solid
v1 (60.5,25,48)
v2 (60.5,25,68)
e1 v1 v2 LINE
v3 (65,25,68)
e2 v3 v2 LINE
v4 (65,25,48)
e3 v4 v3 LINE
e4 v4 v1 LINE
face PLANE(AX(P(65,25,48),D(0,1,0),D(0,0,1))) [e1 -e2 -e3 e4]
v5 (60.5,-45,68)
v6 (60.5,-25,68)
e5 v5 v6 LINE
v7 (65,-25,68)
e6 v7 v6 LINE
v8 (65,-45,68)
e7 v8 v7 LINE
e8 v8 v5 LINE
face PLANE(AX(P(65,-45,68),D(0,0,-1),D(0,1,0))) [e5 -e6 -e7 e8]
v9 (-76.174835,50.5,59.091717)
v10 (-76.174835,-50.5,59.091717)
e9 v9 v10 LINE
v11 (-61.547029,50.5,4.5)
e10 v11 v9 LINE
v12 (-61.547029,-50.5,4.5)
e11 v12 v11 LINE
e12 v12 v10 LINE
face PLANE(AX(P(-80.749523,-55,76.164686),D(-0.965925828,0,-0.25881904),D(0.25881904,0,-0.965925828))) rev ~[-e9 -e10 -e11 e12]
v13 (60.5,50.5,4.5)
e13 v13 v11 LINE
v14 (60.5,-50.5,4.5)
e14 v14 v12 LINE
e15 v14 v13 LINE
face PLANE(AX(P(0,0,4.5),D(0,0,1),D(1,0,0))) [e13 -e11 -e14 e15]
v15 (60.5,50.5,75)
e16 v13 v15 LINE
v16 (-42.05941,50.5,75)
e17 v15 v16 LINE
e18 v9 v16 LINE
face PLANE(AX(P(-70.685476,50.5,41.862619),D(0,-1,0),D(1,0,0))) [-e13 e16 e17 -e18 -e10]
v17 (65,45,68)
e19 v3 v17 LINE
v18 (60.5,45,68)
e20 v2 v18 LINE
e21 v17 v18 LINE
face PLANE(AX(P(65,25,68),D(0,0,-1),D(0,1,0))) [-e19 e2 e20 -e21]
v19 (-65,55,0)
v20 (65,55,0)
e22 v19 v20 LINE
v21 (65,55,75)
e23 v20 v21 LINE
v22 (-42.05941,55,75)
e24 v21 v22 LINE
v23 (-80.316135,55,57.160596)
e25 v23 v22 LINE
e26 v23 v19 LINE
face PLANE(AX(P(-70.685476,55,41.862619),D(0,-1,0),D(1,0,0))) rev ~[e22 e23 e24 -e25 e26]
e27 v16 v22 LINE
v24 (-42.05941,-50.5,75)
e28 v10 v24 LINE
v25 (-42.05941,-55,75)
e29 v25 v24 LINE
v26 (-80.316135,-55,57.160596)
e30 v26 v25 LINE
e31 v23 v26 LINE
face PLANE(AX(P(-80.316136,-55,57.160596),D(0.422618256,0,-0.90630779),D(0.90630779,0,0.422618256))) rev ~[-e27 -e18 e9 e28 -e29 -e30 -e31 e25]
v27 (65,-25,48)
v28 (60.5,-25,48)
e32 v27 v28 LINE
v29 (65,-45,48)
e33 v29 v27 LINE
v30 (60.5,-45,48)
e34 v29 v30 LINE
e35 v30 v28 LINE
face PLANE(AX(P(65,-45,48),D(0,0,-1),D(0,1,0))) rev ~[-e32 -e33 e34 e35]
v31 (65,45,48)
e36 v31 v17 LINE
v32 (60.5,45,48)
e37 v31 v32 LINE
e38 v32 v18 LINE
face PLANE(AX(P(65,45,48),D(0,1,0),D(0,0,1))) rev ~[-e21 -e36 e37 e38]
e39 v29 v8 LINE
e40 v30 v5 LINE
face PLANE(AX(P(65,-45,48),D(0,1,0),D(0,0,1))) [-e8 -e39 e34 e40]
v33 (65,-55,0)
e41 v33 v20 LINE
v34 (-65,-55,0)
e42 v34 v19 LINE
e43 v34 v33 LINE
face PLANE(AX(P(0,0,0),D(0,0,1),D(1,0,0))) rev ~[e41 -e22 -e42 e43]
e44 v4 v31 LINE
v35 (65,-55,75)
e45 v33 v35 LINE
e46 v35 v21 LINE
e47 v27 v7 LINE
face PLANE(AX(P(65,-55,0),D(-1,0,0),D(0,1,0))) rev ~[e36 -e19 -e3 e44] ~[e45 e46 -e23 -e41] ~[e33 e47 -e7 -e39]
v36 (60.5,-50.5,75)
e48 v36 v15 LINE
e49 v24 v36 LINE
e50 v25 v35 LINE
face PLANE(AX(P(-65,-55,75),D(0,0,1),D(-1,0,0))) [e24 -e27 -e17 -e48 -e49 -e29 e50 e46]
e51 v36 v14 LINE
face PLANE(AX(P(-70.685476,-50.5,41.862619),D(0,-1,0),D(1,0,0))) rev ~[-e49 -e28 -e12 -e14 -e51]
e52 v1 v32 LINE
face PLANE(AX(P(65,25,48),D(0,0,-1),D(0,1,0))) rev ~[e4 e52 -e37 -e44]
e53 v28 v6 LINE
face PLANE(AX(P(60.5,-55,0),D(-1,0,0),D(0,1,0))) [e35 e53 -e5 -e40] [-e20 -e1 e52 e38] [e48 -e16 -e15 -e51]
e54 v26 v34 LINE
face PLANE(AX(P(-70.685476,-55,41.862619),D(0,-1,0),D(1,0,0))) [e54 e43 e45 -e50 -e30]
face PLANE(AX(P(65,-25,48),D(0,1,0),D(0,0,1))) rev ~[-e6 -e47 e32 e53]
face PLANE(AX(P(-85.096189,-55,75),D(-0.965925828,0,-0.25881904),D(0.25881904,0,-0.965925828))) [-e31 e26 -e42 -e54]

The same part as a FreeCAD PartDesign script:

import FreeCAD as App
import Part
import Sketcher

V = App.Vector
Q = App.Units.Quantity


def faces_at(feature, points):
    """Names of the faces that lie closest to the given points."""
    faces = feature.Shape.Faces
    near = lambda p: min(range(len(faces)), key=lambda i: faces[i].distToShape(Part.Vertex(*p))[0])
    return sorted({f"Face{near(p) + 1}" for p in points})


def add_polygon(sketch, points):
    """Adds a closed chain of lines whose ends are joined by coincident constraints."""
    first, n = sketch.GeometryCount, len(points)
    for a, b in zip(points, points[1:] + points[:1]):
        sketch.addGeometry(Part.LineSegment(App.Vector(*a, 0), App.Vector(*b, 0)), False)
    for i in range(n):
        sketch.addConstraint(Sketcher.Constraint("Coincident", first + i, 2, first + (i + 1) % n, 1))

doc = App.newDocument("Part")
params = doc.addObject("Spreadsheet::Sheet", "Params")
for row, (alias, value) in enumerate([
    ("sketch1_width", "130 mm"),
    ("sketch1_height", "110 mm"),
    ("pad1_length", "75 mm"),
    ("sketch2_height", "75 mm"),
    ("pad2_length", "110 mm"),
    ("thickness_wall", "4.5 mm"),
    ("sketch4_width", "20 mm"),
    ("pocket2_length", "4.5 mm"),
], start=1):
    params.set(f"A{row}", alias)
    params.set(f"B{row}", "=" + value)
    params.setAlias(f"B{row}", alias)

body = doc.addObject("PartDesign::Body", "Body")

# Sketch on XY plane
sketch1 = doc.addObject("Sketcher::SketchObject", "Sketch")
body.addObject(sketch1)
sketch1.AttachmentSupport = (doc.XY_Plane, [""])
sketch1.MapMode = "FlatFace"
add_polygon(sketch1, [(-65, 55), (-65, -55), (65, -55), (65, 55)])  # lines 0-3
sketch1.addConstraint([
    Sketcher.Constraint("Vertical", 0),
    Sketcher.Constraint("Horizontal", 1),
    Sketcher.Constraint("Vertical", 2),
    Sketcher.Constraint("Horizontal", 3),
    Sketcher.Constraint("Symmetric", 0, 2, 2, 2, -1, 1),
    Sketcher.Constraint("DistanceX", 1, 1, 1, 2, 130.0),
    Sketcher.Constraint("DistanceY", 0, 2, 0, 1, 110.0),
])
sketch1.setExpression("Constraints[9]", "Params.sketch1_width")
sketch1.setExpression("Constraints[10]", "Params.sketch1_height")
pad1 = doc.addObject("PartDesign::Pad", "Pad")
body.addObject(pad1)
pad1.Profile = sketch1
pad1.setExpression("Length", "Params.pad1_length")

# Sketch on XZ plane
sketch2 = doc.addObject("Sketcher::SketchObject", "Sketch001")
body.addObject(sketch2)
sketch2.AttachmentSupport = (doc.XZ_Plane, [""])
sketch2.MapMode = "FlatFace"
sketch2.AttachmentOffset = App.Placement(V(0, 0, 55), App.Rotation())
add_polygon(sketch2, [(-85.096189, 75), (-65, 0), (-65, 75)])  # lines 0-2
sketch2.addConstraint([
    Sketcher.Constraint("Vertical", 1),
    Sketcher.Constraint("Horizontal", 2),
    Sketcher.Constraint("PointOnObject", 0, 2, -1),
    Sketcher.Constraint("DistanceY", 1, 1, 1, 2, 75.0),
    Sketcher.Constraint("Angle", 0, Q("-75 deg")),
    Sketcher.Constraint("DistanceX", 0, 2, -1, 1, 65.0),
])
sketch2.setExpression("Constraints[6]", "Params.sketch2_height")
pad2 = doc.addObject("PartDesign::Pad", "Pad001")
body.addObject(pad2)
pad2.Profile = sketch2
pad2.setExpression("Length", "Params.pad2_length")
pad2.Reversed = True
doc.recompute()

thickness = doc.addObject("PartDesign::Thickness", "Thickness")
body.addObject(thickness)
thickness.Base = (pad2, faces_at(pad2, [(-10.048, 0, 75)]))
thickness.setExpression("Value", "Params.thickness_wall")
thickness.Reversed = True
thickness.Join = "Arc"

# Sketch on XZ plane
sketch3 = doc.addObject("Sketcher::SketchObject", "Sketch002")
body.addObject(sketch3)
sketch3.AttachmentSupport = (doc.XZ_Plane, [""])
sketch3.MapMode = "FlatFace"
sketch3.AttachmentOffset = App.Placement(V(0, 0, 55), App.Rotation())
add_polygon(sketch3, [(-80.316136, 57.160596), (-42.05941, 75), (-85.419632, 75)])  # lines 0-2
sketch3.addConstraint([
    Sketcher.Constraint("Horizontal", 1),
    Sketcher.Constraint("Angle", 0, Q("25 deg")),
    Sketcher.Constraint("DistanceY", -1, 1, 0, 2, 75.0),
    Sketcher.Constraint("DistanceX", 1, 2, 1, 1, 43.360222),
    Sketcher.Constraint("DistanceX", 0, 2, -1, 1, 42.05941),
    Sketcher.Constraint("Distance", 0, 42.211627),
])
pocket1 = doc.addObject("PartDesign::Pocket", "Pocket")
body.addObject(pocket1)
pocket1.Profile = sketch3
pocket1.Type = "ThroughAll"

# Sketch on YZ plane
sketch4 = doc.addObject("Sketcher::SketchObject", "Sketch003")
body.addObject(sketch4)
sketch4.AttachmentSupport = (doc.YZ_Plane, [""])
sketch4.MapMode = "FlatFace"
sketch4.AttachmentOffset = App.Placement(V(0, 0, 65), App.Rotation())
add_polygon(sketch4, [(-45, 68), (-45, 48), (-25, 48), (-25, 68)])  # lines 0-3
add_polygon(sketch4, [(25, 68), (25, 48), (45, 48), (45, 68)])  # lines 4-7
sketch4.addConstraint([
    Sketcher.Constraint("Vertical", 0),
    Sketcher.Constraint("Horizontal", 1),
    Sketcher.Constraint("Vertical", 2),
    Sketcher.Constraint("Horizontal", 3),
    Sketcher.Constraint("Vertical", 4),
    Sketcher.Constraint("Horizontal", 5),
    Sketcher.Constraint("Vertical", 6),
    Sketcher.Constraint("Horizontal", 7),
    Sketcher.Constraint("Symmetric", 1, 2, 4, 2, -2),
    Sketcher.Constraint("Symmetric", 3, 2, 6, 2, -2),
    Sketcher.Constraint("Equal", 7, 0),
    Sketcher.Constraint("DistanceX", 1, 1, 1, 2, 20.0),
    Sketcher.Constraint("DistanceX", 0, 2, -1, 1, 45.0),
    Sketcher.Constraint("DistanceY", -1, 1, 0, 2, 48.0),
])
sketch4.setExpression("Constraints[19]", "Params.sketch4_width")
pocket2 = doc.addObject("PartDesign::Pocket", "Pocket001")
body.addObject(pocket2)
pocket2.Profile = sketch4
pocket2.setExpression("Length", "Params.pocket2_length")

doc.recompute()
